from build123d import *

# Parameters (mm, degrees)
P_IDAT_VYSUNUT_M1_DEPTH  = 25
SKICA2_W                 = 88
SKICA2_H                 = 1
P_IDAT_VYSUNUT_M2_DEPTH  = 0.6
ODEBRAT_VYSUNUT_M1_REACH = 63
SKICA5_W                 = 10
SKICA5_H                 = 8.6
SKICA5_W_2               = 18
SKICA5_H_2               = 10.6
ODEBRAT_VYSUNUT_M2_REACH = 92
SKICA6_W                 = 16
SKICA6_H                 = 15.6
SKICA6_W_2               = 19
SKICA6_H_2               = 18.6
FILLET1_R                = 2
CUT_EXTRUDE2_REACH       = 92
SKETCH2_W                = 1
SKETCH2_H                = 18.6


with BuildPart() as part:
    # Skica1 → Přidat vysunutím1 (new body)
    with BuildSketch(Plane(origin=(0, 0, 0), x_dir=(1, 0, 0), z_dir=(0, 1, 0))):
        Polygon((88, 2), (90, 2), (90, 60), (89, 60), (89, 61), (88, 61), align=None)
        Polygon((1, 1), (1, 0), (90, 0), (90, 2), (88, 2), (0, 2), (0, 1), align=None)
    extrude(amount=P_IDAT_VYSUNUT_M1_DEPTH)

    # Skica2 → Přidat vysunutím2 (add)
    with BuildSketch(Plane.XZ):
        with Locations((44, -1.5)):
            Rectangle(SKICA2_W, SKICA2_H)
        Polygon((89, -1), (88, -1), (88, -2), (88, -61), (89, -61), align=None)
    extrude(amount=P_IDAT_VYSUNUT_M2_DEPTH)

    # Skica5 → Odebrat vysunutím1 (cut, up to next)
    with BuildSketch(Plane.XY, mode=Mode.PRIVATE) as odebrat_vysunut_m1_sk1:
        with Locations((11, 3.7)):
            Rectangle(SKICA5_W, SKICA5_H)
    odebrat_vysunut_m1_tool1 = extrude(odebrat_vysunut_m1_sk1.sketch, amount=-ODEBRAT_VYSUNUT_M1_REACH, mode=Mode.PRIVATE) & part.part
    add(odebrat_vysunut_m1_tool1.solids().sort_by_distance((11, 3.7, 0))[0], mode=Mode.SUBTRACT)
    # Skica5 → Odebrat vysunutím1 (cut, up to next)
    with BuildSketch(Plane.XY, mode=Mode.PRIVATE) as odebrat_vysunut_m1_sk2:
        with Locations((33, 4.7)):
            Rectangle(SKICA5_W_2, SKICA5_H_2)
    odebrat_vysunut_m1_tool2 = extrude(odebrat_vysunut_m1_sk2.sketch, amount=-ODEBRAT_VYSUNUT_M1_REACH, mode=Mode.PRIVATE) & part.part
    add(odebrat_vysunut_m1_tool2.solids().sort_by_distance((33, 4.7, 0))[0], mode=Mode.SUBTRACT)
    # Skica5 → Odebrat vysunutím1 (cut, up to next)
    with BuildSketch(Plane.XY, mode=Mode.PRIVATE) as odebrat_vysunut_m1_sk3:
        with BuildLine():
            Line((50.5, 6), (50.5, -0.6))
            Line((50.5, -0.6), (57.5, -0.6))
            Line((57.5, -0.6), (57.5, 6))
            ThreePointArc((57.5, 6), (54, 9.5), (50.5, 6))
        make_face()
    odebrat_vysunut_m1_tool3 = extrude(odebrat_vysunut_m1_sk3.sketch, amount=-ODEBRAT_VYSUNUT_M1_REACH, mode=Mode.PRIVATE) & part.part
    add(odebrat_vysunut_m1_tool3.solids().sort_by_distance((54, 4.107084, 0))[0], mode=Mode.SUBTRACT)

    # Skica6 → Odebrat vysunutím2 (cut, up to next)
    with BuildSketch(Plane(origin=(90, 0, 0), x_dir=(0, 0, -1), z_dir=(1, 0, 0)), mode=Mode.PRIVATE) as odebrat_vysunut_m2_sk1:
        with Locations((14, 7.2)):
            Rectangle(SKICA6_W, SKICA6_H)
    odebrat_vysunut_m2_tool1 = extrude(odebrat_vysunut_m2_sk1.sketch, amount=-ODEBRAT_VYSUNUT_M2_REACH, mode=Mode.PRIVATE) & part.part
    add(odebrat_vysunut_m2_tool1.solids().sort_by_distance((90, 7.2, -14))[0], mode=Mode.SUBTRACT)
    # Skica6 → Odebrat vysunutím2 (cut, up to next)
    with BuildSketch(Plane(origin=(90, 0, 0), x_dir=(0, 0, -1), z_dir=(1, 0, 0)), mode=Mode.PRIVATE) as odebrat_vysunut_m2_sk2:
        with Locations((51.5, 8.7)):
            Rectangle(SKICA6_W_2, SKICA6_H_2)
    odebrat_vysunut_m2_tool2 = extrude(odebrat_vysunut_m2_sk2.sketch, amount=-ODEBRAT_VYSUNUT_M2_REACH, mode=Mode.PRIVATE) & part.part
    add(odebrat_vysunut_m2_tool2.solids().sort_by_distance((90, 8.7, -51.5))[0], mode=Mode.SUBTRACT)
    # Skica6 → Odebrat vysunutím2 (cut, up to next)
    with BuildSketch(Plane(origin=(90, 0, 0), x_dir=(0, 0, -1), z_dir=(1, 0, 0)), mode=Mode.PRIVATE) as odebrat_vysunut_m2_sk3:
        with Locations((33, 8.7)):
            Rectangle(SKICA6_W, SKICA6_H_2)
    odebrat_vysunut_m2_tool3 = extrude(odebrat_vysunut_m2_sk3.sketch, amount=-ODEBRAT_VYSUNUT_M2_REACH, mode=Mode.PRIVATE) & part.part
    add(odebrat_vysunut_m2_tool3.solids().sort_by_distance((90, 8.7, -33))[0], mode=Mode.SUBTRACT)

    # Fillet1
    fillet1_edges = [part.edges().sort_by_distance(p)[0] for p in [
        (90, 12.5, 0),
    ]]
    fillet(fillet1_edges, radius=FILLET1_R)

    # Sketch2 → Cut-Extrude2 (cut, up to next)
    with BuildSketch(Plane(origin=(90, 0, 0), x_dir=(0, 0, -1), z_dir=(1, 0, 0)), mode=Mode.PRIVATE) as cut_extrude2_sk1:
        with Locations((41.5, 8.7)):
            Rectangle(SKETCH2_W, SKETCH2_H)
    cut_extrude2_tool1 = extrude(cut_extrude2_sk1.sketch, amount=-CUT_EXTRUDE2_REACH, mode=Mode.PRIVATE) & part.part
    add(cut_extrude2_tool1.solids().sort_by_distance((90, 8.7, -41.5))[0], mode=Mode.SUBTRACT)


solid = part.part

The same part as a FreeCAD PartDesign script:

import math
import FreeCAD as App
import Part
import Sketcher
Q = App.Units.Quantity


def edges_at(feature, points):
    """Names of the edges that pass closest to the given points."""
    edges = feature.Shape.Edges
    near = lambda p: min(range(len(edges)), key=lambda i: edges[i].distToShape(Part.Vertex(*p))[0])
    return sorted({f"Edge{near(p) + 1}" for p in points})


def add_polygon(sketch, points):
    """Adds a closed chain of lines whose ends are joined by coincident constraints."""
    first, n = sketch.GeometryCount, len(points)
    for a, b in zip(points, points[1:] + points[:1]):
        sketch.addGeometry(Part.LineSegment(App.Vector(*a, 0), App.Vector(*b, 0)), False)
    for i in range(n):
        sketch.addConstraint(Sketcher.Constraint("Coincident", first + i, 2, first + (i + 1) % n, 1))

doc = App.newDocument("Part")
body = doc.addObject("PartDesign::Body", "Body")

# Sketch on XZ plane
sketch1 = body.newObject("Sketcher::SketchObject", "Sketch")
sketch1.AttachmentSupport = (doc.getObject("XZ_Plane"), [""])
sketch1.MapMode = "FlatFace"
add_polygon(sketch1, [(90, -60), (89, -60), (89, -61), (88, -61), (88, -2), (0, -2), (0, -1), (1, -1), (1, 0), (90, 0)])  # lines 0-9
sketch1.addConstraint(Sketcher.Constraint("Horizontal", 0))
sketch1.addConstraint(Sketcher.Constraint("Vertical", 1))
sketch1.addConstraint(Sketcher.Constraint("Horizontal", 2))
sketch1.addConstraint(Sketcher.Constraint("Vertical", 3))
sketch1.addConstraint(Sketcher.Constraint("Horizontal", 4))
sketch1.addConstraint(Sketcher.Constraint("Vertical", 5))
sketch1.addConstraint(Sketcher.Constraint("Horizontal", 6))
sketch1.addConstraint(Sketcher.Constraint("Vertical", 7))
sketch1.addConstraint(Sketcher.Constraint("Horizontal", 8))
sketch1.addConstraint(Sketcher.Constraint("Vertical", 9))
sketch1.addConstraint(Sketcher.Constraint("PointOnObject", 4, 2, -2))
sketch1.addConstraint(Sketcher.Constraint("PointOnObject", 7, 2, -1))
sketch1.addConstraint(Sketcher.Constraint("Equal", 0, 2))
sketch1.addConstraint(Sketcher.Constraint("Equal", 2, 6))
sketch1.addConstraint(Sketcher.Constraint("Equal", 6, 1))
sketch1.addConstraint(Sketcher.Constraint("Equal", 1, 5))
sketch1.addConstraint(Sketcher.Constraint("Equal", 5, 7))
sketch1.addConstraint(Sketcher.Constraint("DistanceX", 0, 2, 0, 1, Q("1 mm")))
sketch1.addConstraint(Sketcher.Constraint("DistanceX", 4, 2, 4, 1, Q("88 mm")))
sketch1.addConstraint(Sketcher.Constraint("DistanceY", 3, 1, 3, 2, Q("59 mm")))
pad1 = body.newObject("PartDesign::Pad", "Pad")
pad1.Profile = sketch1
pad1.Length = 25
pad1.Reversed = True

# Sketch on XZ plane
sketch2 = body.newObject("Sketcher::SketchObject", "Sketch001")
sketch2.AttachmentSupport = (doc.getObject("XZ_Plane"), [""])
sketch2.MapMode = "FlatFace"
add_polygon(sketch2, [(0, -1), (0, -2), (88, -2), (88, -61), (89, -61), (89, -1)])  # lines 0-5
sketch2.addConstraint(Sketcher.Constraint("Vertical", 0))
sketch2.addConstraint(Sketcher.Constraint("Horizontal", 1))
sketch2.addConstraint(Sketcher.Constraint("Vertical", 2))
sketch2.addConstraint(Sketcher.Constraint("Horizontal", 3))
sketch2.addConstraint(Sketcher.Constraint("Vertical", 4))
sketch2.addConstraint(Sketcher.Constraint("Horizontal", 5))
sketch2.addConstraint(Sketcher.Constraint("PointOnObject", 0, 2, -2))
sketch2.addConstraint(Sketcher.Constraint("Equal", 3, 0))
sketch2.addConstraint(Sketcher.Constraint("DistanceX", 1, 1, 1, 2, Q("88 mm")))
sketch2.addConstraint(Sketcher.Constraint("DistanceX", 3, 1, 3, 2, Q("1 mm")))
sketch2.addConstraint(Sketcher.Constraint("DistanceY", 2, 2, 2, 1, Q("59 mm")))
sketch2.addConstraint(Sketcher.Constraint("DistanceY", 0, 2, -1, 1, Q("2 mm")))
pad2 = body.newObject("PartDesign::Pad", "Pad001")
pad2.Profile = sketch2
pad2.Length = 0.6

# Sketch on XY plane
sketch3 = body.newObject("Sketcher::SketchObject", "Sketch002")
sketch3.AttachmentSupport = (doc.getObject("XY_Plane"), [""])
sketch3.MapMode = "FlatFace"
add_polygon(sketch3, [(6, 8), (6, -1), (16, -1), (16, 8)])  # lines 0-3
sketch3.addConstraint(Sketcher.Constraint("Vertical", 0))
sketch3.addConstraint(Sketcher.Constraint("Horizontal", 1))
sketch3.addConstraint(Sketcher.Constraint("Vertical", 2))
sketch3.addConstraint(Sketcher.Constraint("Horizontal", 3))
sketch3.addConstraint(Sketcher.Constraint("DistanceX", 1, 1, 1, 2, Q("10 mm")))
sketch3.addConstraint(Sketcher.Constraint("DistanceY", 0, 2, 0, 1, Q("8.6 mm")))
sketch3.addConstraint(Sketcher.Constraint("DistanceX", -1, 1, 0, 2, Q("6 mm")))
sketch3.addConstraint(Sketcher.Constraint("DistanceY", -1, 1, 2, 2, Q("8 mm")))
pocket1 = body.newObject("PartDesign::Pocket", "Pocket")
pocket1.Profile = sketch3
pocket1.Type = "UpToFirst"

# Sketch on XY plane
sketch4 = body.newObject("Sketcher::SketchObject", "Sketch003")
sketch4.AttachmentSupport = (doc.getObject("XY_Plane"), [""])
sketch4.MapMode = "FlatFace"
add_polygon(sketch4, [(24, 10), (24, -1), (42, -1), (42, 10)])  # lines 0-3
sketch4.addConstraint(Sketcher.Constraint("Vertical", 0))
sketch4.addConstraint(Sketcher.Constraint("Horizontal", 1))
sketch4.addConstraint(Sketcher.Constraint("Vertical", 2))
sketch4.addConstraint(Sketcher.Constraint("Horizontal", 3))
sketch4.addConstraint(Sketcher.Constraint("DistanceX", 1, 1, 1, 2, Q("18 mm")))
sketch4.addConstraint(Sketcher.Constraint("DistanceY", 0, 2, 0, 1, Q("10.6 mm")))
sketch4.addConstraint(Sketcher.Constraint("DistanceX", -1, 1, 0, 2, Q("24 mm")))
sketch4.addConstraint(Sketcher.Constraint("DistanceY", -1, 1, 2, 2, Q("10 mm")))
pocket2 = body.newObject("PartDesign::Pocket", "Pocket001")
pocket2.Profile = sketch4
pocket2.Type = "UpToFirst"

# Sketch on XY plane
sketch5 = body.newObject("Sketcher::SketchObject", "Sketch004")
sketch5.AttachmentSupport = (doc.getObject("XY_Plane"), [""])
sketch5.MapMode = "FlatFace"
sketch5.addGeometry(Part.LineSegment(App.Vector(50.5, 6, 0), App.Vector(50.5, -0.6, 0)), False)
sketch5.addGeometry(Part.LineSegment(App.Vector(50.5, -0.6, 0), App.Vector(57.5, -0.6, 0)), False)
sketch5.addGeometry(Part.LineSegment(App.Vector(57.5, -0.6, 0), App.Vector(57.5, 6, 0)), False)
sketch5.addGeometry(Part.ArcOfCircle(Part.Circle(App.Vector(54, 6, 0), App.Vector(0, 0, 1), 3.5), math.radians(0), math.radians(180)), False)
sketch5.addConstraint(Sketcher.Constraint("Coincident", 0, 2, 1, 1))
sketch5.addConstraint(Sketcher.Constraint("Coincident", 1, 2, 2, 1))
sketch5.addConstraint(Sketcher.Constraint("Tangent", 2, 2, 3, 1))
sketch5.addConstraint(Sketcher.Constraint("Tangent", 3, 2, 0, 1))
sketch5.addConstraint(Sketcher.Constraint("Vertical", 0))
sketch5.addConstraint(Sketcher.Constraint("Horizontal", 1))
sketch5.addConstraint(Sketcher.Constraint("Vertical", 2))
sketch5.addConstraint(Sketcher.Constraint("Radius", 3, Q("3.5 mm")))
sketch5.addConstraint(Sketcher.Constraint("DistanceY", 0, 2, 0, 1, Q("6.6 mm")))
sketch5.addConstraint(Sketcher.Constraint("DistanceX", -1, 1, 3, 3, Q("54 mm")))
sketch5.addConstraint(Sketcher.Constraint("DistanceY", -1, 1, 3, 3, Q("6 mm")))
pocket3 = body.newObject("PartDesign::Pocket", "Pocket002")
pocket3.Profile = sketch5
pocket3.Type = "UpToFirst"

# Sketch on YZ plane
sketch6 = body.newObject("Sketcher::SketchObject", "Sketch005")
sketch6.AttachmentSupport = (doc.getObject("YZ_Plane"), [""])
sketch6.MapMode = "FlatFace"
sketch6.AttachmentOffset = App.Placement(App.Vector(0, 0, 90), App.Rotation())
add_polygon(sketch6, [(15, -6), (-1, -6), (-1, -22), (15, -22)])  # lines 0-3
sketch6.addConstraint(Sketcher.Constraint("Horizontal", 0))
sketch6.addConstraint(Sketcher.Constraint("Vertical", 1))
sketch6.addConstraint(Sketcher.Constraint("Horizontal", 2))
sketch6.addConstraint(Sketcher.Constraint("Vertical", 3))
sketch6.addConstraint(Sketcher.Constraint("DistanceY", 1, 2, 1, 1, Q("16 mm")))
sketch6.addConstraint(Sketcher.Constraint("DistanceX", 0, 2, 0, 1, Q("15.6 mm")))
sketch6.addConstraint(Sketcher.Constraint("DistanceY", 0, 2, -1, 1, Q("6 mm")))
sketch6.addConstraint(Sketcher.Constraint("DistanceX", -1, 1, 2, 2, Q("15 mm")))
pocket4 = body.newObject("PartDesign::Pocket", "Pocket003")
pocket4.Profile = sketch6
pocket4.Type = "UpToFirst"

# Sketch on YZ plane
sketch7 = body.newObject("Sketcher::SketchObject", "Sketch006")
sketch7.AttachmentSupport = (doc.getObject("YZ_Plane"), [""])
sketch7.MapMode = "FlatFace"
sketch7.AttachmentOffset = App.Placement(App.Vector(0, 0, 90), App.Rotation())
add_polygon(sketch7, [(18, -42), (-1, -42), (-1, -61), (18, -61)])  # lines 0-3
sketch7.addConstraint(Sketcher.Constraint("Horizontal", 0))
sketch7.addConstraint(Sketcher.Constraint("Vertical", 1))
sketch7.addConstraint(Sketcher.Constraint("Horizontal", 2))
sketch7.addConstraint(Sketcher.Constraint("Vertical", 3))
sketch7.addConstraint(Sketcher.Constraint("DistanceY", 1, 2, 1, 1, Q("19 mm")))
sketch7.addConstraint(Sketcher.Constraint("DistanceX", 0, 2, 0, 1, Q("18.6 mm")))
sketch7.addConstraint(Sketcher.Constraint("DistanceY", 0, 2, -1, 1, Q("42 mm")))
sketch7.addConstraint(Sketcher.Constraint("DistanceX", -1, 1, 2, 2, Q("18 mm")))
pocket5 = body.newObject("PartDesign::Pocket", "Pocket004")
pocket5.Profile = sketch7
pocket5.Type = "UpToFirst"

# Sketch on YZ plane
sketch8 = body.newObject("Sketcher::SketchObject", "Sketch007")
sketch8.AttachmentSupport = (doc.getObject("YZ_Plane"), [""])
sketch8.MapMode = "FlatFace"
sketch8.AttachmentOffset = App.Placement(App.Vector(0, 0, 90), App.Rotation())
add_polygon(sketch8, [(18, -25), (-1, -25), (-1, -41), (18, -41)])  # lines 0-3
sketch8.addConstraint(Sketcher.Constraint("Horizontal", 0))
sketch8.addConstraint(Sketcher.Constraint("Vertical", 1))
sketch8.addConstraint(Sketcher.Constraint("Horizontal", 2))
sketch8.addConstraint(Sketcher.Constraint("Vertical", 3))
sketch8.addConstraint(Sketcher.Constraint("DistanceY", 1, 2, 1, 1, Q("16 mm")))
sketch8.addConstraint(Sketcher.Constraint("DistanceX", 0, 2, 0, 1, Q("18.6 mm")))
sketch8.addConstraint(Sketcher.Constraint("DistanceY", 0, 2, -1, 1, Q("25 mm")))
sketch8.addConstraint(Sketcher.Constraint("DistanceX", -1, 1, 2, 2, Q("18 mm")))
pocket6 = body.newObject("PartDesign::Pocket", "Pocket005")
pocket6.Profile = sketch8
pocket6.Type = "UpToFirst"
doc.recompute()

fillet = body.newObject("PartDesign::Fillet", "Fillet")
fillet.Base = (pocket6, edges_at(pocket6, [(90, 12.5, 0)]))
fillet.Radius = 2

# Sketch on YZ plane
sketch9 = body.newObject("Sketcher::SketchObject", "Sketch008")
sketch9.AttachmentSupport = (doc.getObject("YZ_Plane"), [""])
sketch9.MapMode = "FlatFace"
sketch9.AttachmentOffset = App.Placement(App.Vector(0, 0, 90), App.Rotation())
add_polygon(sketch9, [(18, -41), (-0.6, -41), (-0.6, -42), (18, -42)])  # lines 0-3
sketch9.addConstraint(Sketcher.Constraint("Horizontal", 0))
sketch9.addConstraint(Sketcher.Constraint("Vertical", 1))
sketch9.addConstraint(Sketcher.Constraint("Horizontal", 2))
sketch9.addConstraint(Sketcher.Constraint("Vertical", 3))
sketch9.addConstraint(Sketcher.Constraint("DistanceY", 1, 2, 1, 1, Q("1 mm")))
sketch9.addConstraint(Sketcher.Constraint("DistanceX", 0, 2, 0, 1, Q("18.6 mm")))
sketch9.addConstraint(Sketcher.Constraint("DistanceY", 0, 2, -1, 1, Q("41 mm")))
sketch9.addConstraint(Sketcher.Constraint("DistanceX", -1, 1, 2, 2, Q("18 mm")))
pocket7 = body.newObject("PartDesign::Pocket", "Pocket006")
pocket7.Profile = sketch9
pocket7.Type = "UpToFirst"

doc.recompute()
